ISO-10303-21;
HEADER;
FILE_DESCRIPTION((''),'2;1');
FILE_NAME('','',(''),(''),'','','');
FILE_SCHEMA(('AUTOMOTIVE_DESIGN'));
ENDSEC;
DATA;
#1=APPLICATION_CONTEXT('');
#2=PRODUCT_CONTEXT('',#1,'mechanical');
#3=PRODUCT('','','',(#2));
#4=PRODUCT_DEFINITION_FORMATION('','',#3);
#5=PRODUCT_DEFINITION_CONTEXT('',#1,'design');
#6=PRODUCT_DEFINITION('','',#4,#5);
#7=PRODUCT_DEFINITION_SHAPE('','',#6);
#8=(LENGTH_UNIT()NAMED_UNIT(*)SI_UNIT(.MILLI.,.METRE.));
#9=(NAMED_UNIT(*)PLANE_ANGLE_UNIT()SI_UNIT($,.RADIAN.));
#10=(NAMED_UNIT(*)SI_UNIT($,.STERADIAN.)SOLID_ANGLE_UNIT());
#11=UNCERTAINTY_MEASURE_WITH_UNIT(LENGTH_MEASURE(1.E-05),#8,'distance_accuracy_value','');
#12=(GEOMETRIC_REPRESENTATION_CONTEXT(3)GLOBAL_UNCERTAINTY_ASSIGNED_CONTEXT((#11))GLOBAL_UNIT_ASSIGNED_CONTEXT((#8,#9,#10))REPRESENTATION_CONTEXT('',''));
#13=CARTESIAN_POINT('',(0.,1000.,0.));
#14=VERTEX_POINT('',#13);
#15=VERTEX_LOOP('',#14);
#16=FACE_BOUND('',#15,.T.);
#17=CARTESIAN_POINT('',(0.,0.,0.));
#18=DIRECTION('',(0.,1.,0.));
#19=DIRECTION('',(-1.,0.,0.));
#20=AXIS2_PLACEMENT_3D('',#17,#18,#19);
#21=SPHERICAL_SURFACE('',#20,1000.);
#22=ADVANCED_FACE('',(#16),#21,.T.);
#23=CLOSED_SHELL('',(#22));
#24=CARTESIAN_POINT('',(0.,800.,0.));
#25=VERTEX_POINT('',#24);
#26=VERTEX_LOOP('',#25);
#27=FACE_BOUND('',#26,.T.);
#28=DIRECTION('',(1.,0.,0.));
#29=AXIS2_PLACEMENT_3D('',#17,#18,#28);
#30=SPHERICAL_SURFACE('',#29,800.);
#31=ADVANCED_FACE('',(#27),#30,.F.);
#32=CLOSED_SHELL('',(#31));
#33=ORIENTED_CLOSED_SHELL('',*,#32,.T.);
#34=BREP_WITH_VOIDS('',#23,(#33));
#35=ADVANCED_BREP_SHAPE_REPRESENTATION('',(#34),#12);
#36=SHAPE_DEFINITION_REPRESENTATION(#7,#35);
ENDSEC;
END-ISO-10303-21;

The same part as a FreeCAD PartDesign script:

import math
import FreeCAD as App
import Part
import Sketcher
from FreeCAD import Vector
Q = App.Units.Quantity

doc = App.newDocument("Part")
body = doc.addObject("PartDesign::Body", "Body")

# Sketch on XY plane
sketch1 = body.newObject("Sketcher::SketchObject", "Sketch")
sketch1.AttachmentSupport = (doc.getObject("XY_Plane"), [""])
sketch1.MapMode = "FlatFace"
sketch1.addGeometry([
    Part.LineSegment(Vector(0, 1000, 0), Vector(0, 800, 0)),
    Part.ArcOfCircle(Part.Circle(Vector(0, 0, 0), Vector(0, 0, 1), 800), math.radians(-90), math.radians(90)),
    Part.LineSegment(Vector(0, -800, 0), Vector(0, -1000, 0)),
    Part.ArcOfCircle(Part.Circle(Vector(0, 0, 0), Vector(0, 0, 1), 1000), math.radians(-90), math.radians(90)),
], False)
sketch1.addConstraint([
    Sketcher.Constraint("Coincident", 0, 2, 1, 2),
    Sketcher.Constraint("Coincident", 1, 1, 2, 1),
    Sketcher.Constraint("Coincident", 2, 2, 3, 1),
    Sketcher.Constraint("Coincident", 3, 2, 0, 1),
    Sketcher.Constraint("Vertical", 0),
    Sketcher.Constraint("Vertical", 2),
    Sketcher.Constraint("Coincident", 1, 3, -1, 1),
    Sketcher.Constraint("Coincident", 3, 3, -1, 1),
    Sketcher.Constraint("PointOnObject", 0, 2, -2),
    Sketcher.Constraint("PointOnObject", 2, 2, -2),
    Sketcher.Constraint("Radius", 1, Q("800 mm")),
    Sketcher.Constraint("Radius", 3, Q("1000 mm")),
])
revolution = body.newObject("PartDesign::Revolution", "Revolution")
revolution.Profile = sketch1
revolution.ReferenceAxis = (sketch1, ["V_Axis"])
revolution.Angle = 360

doc.recompute()
